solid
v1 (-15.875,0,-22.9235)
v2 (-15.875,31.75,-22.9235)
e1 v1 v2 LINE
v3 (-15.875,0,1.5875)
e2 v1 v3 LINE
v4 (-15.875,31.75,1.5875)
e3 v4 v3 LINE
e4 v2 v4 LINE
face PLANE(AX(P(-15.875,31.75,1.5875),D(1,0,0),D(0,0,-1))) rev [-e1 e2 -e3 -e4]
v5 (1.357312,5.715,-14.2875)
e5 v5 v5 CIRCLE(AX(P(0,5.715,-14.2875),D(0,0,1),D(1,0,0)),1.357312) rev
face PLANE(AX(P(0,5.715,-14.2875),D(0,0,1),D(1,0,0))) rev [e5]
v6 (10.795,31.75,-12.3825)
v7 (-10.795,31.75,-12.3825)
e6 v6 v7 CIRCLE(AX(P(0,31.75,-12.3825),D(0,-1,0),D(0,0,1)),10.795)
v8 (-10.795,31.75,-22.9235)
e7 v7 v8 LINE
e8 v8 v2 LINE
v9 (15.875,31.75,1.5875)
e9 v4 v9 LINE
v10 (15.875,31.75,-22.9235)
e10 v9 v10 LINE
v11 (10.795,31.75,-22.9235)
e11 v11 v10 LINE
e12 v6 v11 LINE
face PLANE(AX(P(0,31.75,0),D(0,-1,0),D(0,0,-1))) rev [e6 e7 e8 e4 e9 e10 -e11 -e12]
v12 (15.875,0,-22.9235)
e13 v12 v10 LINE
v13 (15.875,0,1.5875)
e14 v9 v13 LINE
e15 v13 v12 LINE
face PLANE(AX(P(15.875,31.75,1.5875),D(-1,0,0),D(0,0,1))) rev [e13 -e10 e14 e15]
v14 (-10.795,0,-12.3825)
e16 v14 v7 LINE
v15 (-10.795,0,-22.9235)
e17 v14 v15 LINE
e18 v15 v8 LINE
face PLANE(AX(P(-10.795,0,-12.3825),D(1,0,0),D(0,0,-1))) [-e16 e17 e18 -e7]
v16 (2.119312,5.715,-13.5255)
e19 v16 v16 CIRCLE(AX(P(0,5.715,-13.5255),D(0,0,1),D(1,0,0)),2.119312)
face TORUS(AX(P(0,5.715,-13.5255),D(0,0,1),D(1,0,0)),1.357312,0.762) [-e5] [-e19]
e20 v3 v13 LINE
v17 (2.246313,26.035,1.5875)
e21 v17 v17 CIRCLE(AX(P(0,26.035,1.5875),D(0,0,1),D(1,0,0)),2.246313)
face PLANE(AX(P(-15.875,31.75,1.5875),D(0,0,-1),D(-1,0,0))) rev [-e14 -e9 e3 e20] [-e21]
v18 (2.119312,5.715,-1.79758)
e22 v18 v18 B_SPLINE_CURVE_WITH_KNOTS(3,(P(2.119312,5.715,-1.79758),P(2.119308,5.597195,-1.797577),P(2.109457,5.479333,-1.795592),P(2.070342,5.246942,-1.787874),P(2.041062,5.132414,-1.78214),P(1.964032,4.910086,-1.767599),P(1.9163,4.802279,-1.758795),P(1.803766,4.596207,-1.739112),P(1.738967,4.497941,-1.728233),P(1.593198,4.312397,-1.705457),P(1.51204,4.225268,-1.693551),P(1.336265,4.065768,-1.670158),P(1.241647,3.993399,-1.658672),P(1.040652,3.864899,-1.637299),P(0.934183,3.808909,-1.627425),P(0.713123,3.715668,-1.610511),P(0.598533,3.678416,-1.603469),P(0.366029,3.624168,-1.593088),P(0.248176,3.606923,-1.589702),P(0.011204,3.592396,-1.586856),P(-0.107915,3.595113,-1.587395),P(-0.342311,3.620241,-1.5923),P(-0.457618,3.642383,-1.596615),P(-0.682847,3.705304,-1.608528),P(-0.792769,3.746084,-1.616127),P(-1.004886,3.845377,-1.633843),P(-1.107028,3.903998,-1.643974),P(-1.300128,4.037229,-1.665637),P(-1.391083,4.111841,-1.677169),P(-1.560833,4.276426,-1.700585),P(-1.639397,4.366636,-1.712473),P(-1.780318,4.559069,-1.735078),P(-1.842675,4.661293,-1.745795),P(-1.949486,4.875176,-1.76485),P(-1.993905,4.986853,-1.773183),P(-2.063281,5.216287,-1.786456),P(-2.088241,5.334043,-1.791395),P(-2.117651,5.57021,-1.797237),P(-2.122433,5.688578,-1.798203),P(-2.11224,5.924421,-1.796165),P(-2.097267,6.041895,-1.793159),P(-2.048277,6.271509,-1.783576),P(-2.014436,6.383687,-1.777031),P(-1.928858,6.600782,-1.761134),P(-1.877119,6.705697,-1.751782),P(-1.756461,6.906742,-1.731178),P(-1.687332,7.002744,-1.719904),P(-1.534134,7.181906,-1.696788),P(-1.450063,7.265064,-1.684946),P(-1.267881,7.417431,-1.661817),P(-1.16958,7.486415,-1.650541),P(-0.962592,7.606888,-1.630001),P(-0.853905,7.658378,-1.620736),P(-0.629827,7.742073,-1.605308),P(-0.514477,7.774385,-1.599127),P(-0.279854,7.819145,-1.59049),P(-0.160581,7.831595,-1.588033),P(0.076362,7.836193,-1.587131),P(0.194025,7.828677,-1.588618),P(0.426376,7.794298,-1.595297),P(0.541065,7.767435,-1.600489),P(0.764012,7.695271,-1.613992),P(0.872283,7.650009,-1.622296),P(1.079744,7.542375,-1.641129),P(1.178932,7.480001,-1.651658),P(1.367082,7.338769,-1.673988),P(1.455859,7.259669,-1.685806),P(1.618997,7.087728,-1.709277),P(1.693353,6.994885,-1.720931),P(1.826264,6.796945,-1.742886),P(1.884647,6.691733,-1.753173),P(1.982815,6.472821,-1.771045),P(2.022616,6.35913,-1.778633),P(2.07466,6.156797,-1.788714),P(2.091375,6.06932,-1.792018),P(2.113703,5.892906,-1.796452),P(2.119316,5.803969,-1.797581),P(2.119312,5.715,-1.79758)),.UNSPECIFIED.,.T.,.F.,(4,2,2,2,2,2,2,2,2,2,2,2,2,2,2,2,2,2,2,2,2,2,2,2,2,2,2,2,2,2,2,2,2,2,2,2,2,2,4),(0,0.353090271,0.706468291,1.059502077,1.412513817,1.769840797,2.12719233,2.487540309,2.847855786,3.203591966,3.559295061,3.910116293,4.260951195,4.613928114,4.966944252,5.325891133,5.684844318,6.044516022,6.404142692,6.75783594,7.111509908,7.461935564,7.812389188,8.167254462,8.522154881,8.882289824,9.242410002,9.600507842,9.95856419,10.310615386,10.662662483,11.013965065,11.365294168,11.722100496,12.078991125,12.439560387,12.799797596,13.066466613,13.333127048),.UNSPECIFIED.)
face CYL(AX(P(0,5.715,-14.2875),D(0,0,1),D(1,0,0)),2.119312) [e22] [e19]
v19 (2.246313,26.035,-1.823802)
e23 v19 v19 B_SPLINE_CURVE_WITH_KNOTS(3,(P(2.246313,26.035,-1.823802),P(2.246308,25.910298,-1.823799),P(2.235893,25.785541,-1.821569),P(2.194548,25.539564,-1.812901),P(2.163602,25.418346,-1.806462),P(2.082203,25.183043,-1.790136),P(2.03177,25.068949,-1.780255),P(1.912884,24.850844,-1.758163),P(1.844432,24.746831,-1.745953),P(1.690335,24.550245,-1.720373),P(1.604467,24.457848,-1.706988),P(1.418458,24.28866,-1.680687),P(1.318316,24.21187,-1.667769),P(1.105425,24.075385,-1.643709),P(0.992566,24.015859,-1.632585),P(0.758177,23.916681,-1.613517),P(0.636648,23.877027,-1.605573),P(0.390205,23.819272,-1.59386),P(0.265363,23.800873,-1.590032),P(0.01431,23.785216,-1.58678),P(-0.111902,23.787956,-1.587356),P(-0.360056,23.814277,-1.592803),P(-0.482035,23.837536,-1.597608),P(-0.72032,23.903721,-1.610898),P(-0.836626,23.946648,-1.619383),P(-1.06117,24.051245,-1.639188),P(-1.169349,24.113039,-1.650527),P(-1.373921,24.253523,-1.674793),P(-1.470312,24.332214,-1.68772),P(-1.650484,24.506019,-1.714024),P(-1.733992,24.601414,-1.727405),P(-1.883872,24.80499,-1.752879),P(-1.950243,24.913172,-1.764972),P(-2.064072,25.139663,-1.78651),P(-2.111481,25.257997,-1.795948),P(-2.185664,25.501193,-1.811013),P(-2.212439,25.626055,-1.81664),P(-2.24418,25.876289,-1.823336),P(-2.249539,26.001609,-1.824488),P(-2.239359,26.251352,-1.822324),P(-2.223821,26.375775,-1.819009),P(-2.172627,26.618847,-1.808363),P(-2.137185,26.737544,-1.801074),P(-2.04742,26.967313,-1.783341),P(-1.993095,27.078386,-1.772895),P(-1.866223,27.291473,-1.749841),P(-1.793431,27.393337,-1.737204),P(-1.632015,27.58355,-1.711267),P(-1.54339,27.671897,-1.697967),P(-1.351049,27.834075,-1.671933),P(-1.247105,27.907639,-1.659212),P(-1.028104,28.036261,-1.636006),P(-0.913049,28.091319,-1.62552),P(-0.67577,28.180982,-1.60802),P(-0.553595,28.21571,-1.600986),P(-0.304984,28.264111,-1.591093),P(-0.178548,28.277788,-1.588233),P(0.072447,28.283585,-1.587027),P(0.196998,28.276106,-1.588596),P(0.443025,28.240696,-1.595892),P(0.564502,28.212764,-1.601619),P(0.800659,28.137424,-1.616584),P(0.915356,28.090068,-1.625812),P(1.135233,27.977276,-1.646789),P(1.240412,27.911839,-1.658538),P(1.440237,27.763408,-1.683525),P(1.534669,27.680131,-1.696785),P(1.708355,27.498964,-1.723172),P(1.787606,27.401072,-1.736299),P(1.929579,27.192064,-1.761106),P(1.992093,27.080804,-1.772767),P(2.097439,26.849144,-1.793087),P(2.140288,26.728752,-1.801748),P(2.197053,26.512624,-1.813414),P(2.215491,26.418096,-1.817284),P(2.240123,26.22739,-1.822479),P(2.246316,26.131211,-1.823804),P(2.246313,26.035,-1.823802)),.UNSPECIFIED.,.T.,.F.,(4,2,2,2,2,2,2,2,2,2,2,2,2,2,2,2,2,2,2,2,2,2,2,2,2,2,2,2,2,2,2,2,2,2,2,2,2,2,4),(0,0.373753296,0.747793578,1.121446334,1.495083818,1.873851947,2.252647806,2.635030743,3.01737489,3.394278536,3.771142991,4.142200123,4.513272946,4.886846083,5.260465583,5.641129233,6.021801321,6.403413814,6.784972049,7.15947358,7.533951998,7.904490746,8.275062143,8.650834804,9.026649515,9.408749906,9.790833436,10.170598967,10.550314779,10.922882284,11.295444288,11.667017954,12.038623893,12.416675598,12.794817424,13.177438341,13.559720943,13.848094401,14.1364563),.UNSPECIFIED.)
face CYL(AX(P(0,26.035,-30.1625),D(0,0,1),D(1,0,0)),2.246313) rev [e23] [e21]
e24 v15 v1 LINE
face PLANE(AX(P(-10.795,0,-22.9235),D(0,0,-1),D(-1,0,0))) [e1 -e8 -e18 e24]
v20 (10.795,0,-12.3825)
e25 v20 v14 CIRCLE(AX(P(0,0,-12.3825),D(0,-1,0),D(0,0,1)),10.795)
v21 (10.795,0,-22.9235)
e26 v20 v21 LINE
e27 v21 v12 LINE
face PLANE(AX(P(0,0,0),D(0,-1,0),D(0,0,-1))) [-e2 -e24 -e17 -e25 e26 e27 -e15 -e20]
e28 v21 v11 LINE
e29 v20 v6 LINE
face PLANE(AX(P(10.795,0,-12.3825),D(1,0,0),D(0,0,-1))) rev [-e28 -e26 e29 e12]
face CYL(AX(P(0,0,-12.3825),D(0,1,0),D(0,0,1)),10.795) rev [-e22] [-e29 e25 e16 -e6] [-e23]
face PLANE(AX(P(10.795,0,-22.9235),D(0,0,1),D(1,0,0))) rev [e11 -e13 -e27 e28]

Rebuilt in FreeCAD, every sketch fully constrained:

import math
import FreeCAD as App
import Part
import Sketcher

V = App.Vector
Q = App.Units.Quantity


def edges_at(feature, points):
    """Names of the edges that pass closest to the given points."""
    edges = feature.Shape.Edges
    near = lambda p: min(range(len(edges)), key=lambda i: edges[i].distToShape(Part.Vertex(*p))[0])
    return sorted({f"Edge{near(p) + 1}" for p in points})

doc = App.newDocument("Part")
body = doc.addObject("PartDesign::Body", "Body")

sketch1 = body.newObject("Sketcher::SketchObject", "Sketch")
sketch1.AttachmentSupport = (doc.getObject("XZ_Plane"), [""])
sketch1.MapMode = "FlatFace"
sketch1.addGeometry(Part.LineSegment(V(-15.9, -1.6, 0), V(-15.9, 1.6, 0)), False)
sketch1.addGeometry(Part.LineSegment(V(-15.9, 1.6, 0), V(15.9, 1.6, 0)), False)
sketch1.addGeometry(Part.LineSegment(V(15.9, 1.6, 0), V(15.9, -1.6, 0)), False)
sketch1.addGeometry(Part.LineSegment(V(15.9, -1.6, 0), V(-15.9, -1.6, 0)), False)
sketch1.addConstraint(Sketcher.Constraint("Coincident", 0, 2, 1, 1))
sketch1.addConstraint(Sketcher.Constraint("Coincident", 1, 2, 2, 1))
sketch1.addConstraint(Sketcher.Constraint("Coincident", 2, 2, 3, 1))
sketch1.addConstraint(Sketcher.Constraint("Coincident", 3, 2, 0, 1))
sketch1.addConstraint(Sketcher.Constraint("Vertical", 0))
sketch1.addConstraint(Sketcher.Constraint("Horizontal", 1))
sketch1.addConstraint(Sketcher.Constraint("Vertical", 2))
sketch1.addConstraint(Sketcher.Constraint("Horizontal", 3))
sketch1.addConstraint(Sketcher.Constraint("Symmetric", 0, 2, 2, 2, -1, 1))
sketch1.addConstraint(Sketcher.Constraint("DistanceX", 1, 1, 1, 2, Q("1.25 in")))
sketch1.addConstraint(Sketcher.Constraint("DistanceY", 0, 1, 0, 2, Q("0.125 in")))
pad1 = body.newObject("PartDesign::Pad", "Pad")
pad1.Profile = sketch1
pad1.Length = Q("1.25 in")
pad1.Reversed = True

sketch2 = body.newObject("Sketcher::SketchObject", "Sketch001")
sketch2.AttachmentSupport = (doc.getObject("XZ_Plane"), [""])
sketch2.MapMode = "FlatFace"
sketch2.AttachmentOffset = App.Placement(V(0, 0, -1.25 * 25.4), App.Rotation())
sketch2.addGeometry(Part.LineSegment(V(-16, -12, 0), V(-16, -2, 0)), False)
sketch2.addGeometry(Part.LineSegment(V(-16, -2, 0), V(0, -2, 0)), False)
sketch2.addGeometry(Part.ArcOfCircle(Part.Circle(V(0, -12, 0), V(0, 0, 1), 11), math.radians(90), math.radians(180)), False)
sketch2.addGeometry(Part.LineSegment(V(-11, -12, 0), V(-16, -12, 0)), False)
sketch2.addConstraint(Sketcher.Constraint("Coincident", 0, 2, 1, 1))
sketch2.addConstraint(Sketcher.Constraint("Tangent", 1, 2, 2, 1))
sketch2.addConstraint(Sketcher.Constraint("Coincident", 2, 2, 3, 1))
sketch2.addConstraint(Sketcher.Constraint("Coincident", 3, 2, 0, 1))
sketch2.addConstraint(Sketcher.Constraint("Vertical", 0))
sketch2.addConstraint(Sketcher.Constraint("Horizontal", 1))
sketch2.addConstraint(Sketcher.Constraint("Horizontal", 3))
sketch2.addConstraint(Sketcher.Constraint("PointOnObject", 2, 3, -2))
sketch2.addConstraint(Sketcher.Constraint("DistanceX", 3, 2, 3, 1, Q("0.2 in")))
sketch2.addConstraint(Sketcher.Constraint("Radius", 2, Q("0.425 in")))
sketch2.addConstraint(Sketcher.Constraint("DistanceY", 0, 1, 0, 2, Q("0.425 in")))
sketch2.addConstraint(Sketcher.Constraint("DistanceY", 0, 2, -1, 1, Q("0.0625 in")))
pad2 = body.newObject("PartDesign::Pad", "Pad001")
pad2.Profile = sketch2
pad2.Length = Q("1.25 in")
doc.recompute()

mirrored = body.newObject("PartDesign::Mirrored", "Mirrored")
mirrored.Originals = [pad2]
mirrored.MirrorPlane = (doc.getObject("YZ_Plane"), [""])
body.Tip = mirrored

sketch3 = body.newObject("Sketcher::SketchObject", "Sketch002")
sketch3.AttachmentSupport = (doc.getObject("XZ_Plane"), [""])
sketch3.MapMode = "FlatFace"
sketch3.AttachmentOffset = App.Placement(V(0, 0, -1.25 * 25.4), App.Rotation())
sketch3.addGeometry(Part.LineSegment(V(-16, -23, 0), V(-16, -12, 0)), False)
sketch3.addGeometry(Part.LineSegment(V(-16, -12, 0), V(-11, -12, 0)), False)
sketch3.addGeometry(Part.LineSegment(V(-11, -12, 0), V(-11, -23, 0)), False)
sketch3.addGeometry(Part.LineSegment(V(-11, -23, 0), V(-16, -23, 0)), False)
sketch3.addConstraint(Sketcher.Constraint("Coincident", 0, 2, 1, 1))
sketch3.addConstraint(Sketcher.Constraint("Coincident", 1, 2, 2, 1))
sketch3.addConstraint(Sketcher.Constraint("Coincident", 2, 2, 3, 1))
sketch3.addConstraint(Sketcher.Constraint("Coincident", 3, 2, 0, 1))
sketch3.addConstraint(Sketcher.Constraint("Vertical", 0))
sketch3.addConstraint(Sketcher.Constraint("Horizontal", 1))
sketch3.addConstraint(Sketcher.Constraint("Vertical", 2))
sketch3.addConstraint(Sketcher.Constraint("Horizontal", 3))
sketch3.addConstraint(Sketcher.Constraint("DistanceX", 1, 1, 1, 2, Q("0.2 in")))
sketch3.addConstraint(Sketcher.Constraint("DistanceY", 0, 1, 0, 2, Q("0.415 in")))
sketch3.addConstraint(Sketcher.Constraint("DistanceX", 0, 2, -1, 1, Q("0.625 in")))
sketch3.addConstraint(Sketcher.Constraint("DistanceY", 0, 2, -1, 1, Q("0.4875 in")))
pad3 = body.newObject("PartDesign::Pad", "Pad002")
pad3.Profile = sketch3
pad3.Length = Q("1.25 in")
doc.recompute()

mirrored2 = body.newObject("PartDesign::Mirrored", "Mirrored001")
mirrored2.Originals = [pad3]
mirrored2.MirrorPlane = (doc.getObject("YZ_Plane"), [""])
body.Tip = mirrored2

sketch4 = body.newObject("Sketcher::SketchObject", "Sketch003")
sketch4.AttachmentSupport = (doc.getObject("XY_Plane"), [""])
sketch4.MapMode = "FlatFace"
sketch4.AttachmentOffset = App.Placement(V(0, 0, 0.0625 * 25.4), App.Rotation())
sketch4.addGeometry(Part.Circle(V(0, 26, 0), V(0, 0, 1), 2.2), False)
sketch4.addGeometry(Part.Circle(V(0, 5.7, 0), V(0, 0, 1), 2.1), False)
sketch4.addConstraint(Sketcher.Constraint("PointOnObject", 0, 3, -2))
sketch4.addConstraint(Sketcher.Constraint("PointOnObject", 1, 3, -2))
sketch4.addConstraint(Sketcher.Constraint("DistanceY", 1, 3, 0, 3, Q("0.8 in")))
sketch4.addConstraint(Sketcher.Constraint("DistanceY", -1, 1, 0, 3, Q("1.025 in")))
sketch4.addConstraint(Sketcher.Constraint("Diameter", 0, 4.492625))
sketch4.addConstraint(Sketcher.Constraint("Diameter", 1, 4.238625))
pocket1 = body.newObject("PartDesign::Pocket", "Pocket")
pocket1.Profile = sketch4
pocket1.Length = Q("1.25 in")

sketch5 = body.newObject("Sketcher::SketchObject", "Sketch004")
sketch5.AttachmentSupport = (doc.getObject("XY_Plane"), [""])
sketch5.MapMode = "FlatFace"
sketch5.AttachmentOffset = App.Placement(V(0, 0, 0.0625 * 25.4), App.Rotation())
sketch5.addGeometry(Part.Circle(V(0, 5.7, 0), V(0, 0, 1), 2.1), False)
sketch5.addConstraint(Sketcher.Constraint("PointOnObject", 0, 3, -2))
sketch5.addConstraint(Sketcher.Constraint("DistanceY", -1, 1, 0, 3, Q("0.225 in")))
sketch5.addConstraint(Sketcher.Constraint("Diameter", 0, 4.238625))
pad4 = body.newObject("PartDesign::Pad", "Pad003")
pad4.Profile = sketch5
pad4.Length = Q("0.625 in")
pad4.Reversed = True
doc.recompute()

fillet = body.newObject("PartDesign::Fillet", "Fillet")
fillet.Base = (pad4, edges_at(pad4, [(-2.119, 5.715, -14.287)]))
fillet.Radius = Q("0.03 in")

doc.recompute()
